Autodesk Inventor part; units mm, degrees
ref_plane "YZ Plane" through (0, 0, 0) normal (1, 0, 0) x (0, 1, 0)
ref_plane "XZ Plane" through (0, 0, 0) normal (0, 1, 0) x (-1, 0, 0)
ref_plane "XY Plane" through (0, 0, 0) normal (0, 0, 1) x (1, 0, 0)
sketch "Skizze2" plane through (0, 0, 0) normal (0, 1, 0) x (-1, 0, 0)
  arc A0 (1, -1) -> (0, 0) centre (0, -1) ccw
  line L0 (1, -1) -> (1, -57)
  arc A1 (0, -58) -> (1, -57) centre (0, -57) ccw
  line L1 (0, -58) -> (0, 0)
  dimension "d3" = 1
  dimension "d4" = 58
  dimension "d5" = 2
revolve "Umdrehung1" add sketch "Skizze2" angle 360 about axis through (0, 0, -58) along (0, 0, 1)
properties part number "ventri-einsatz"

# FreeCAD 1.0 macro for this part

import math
import FreeCAD as App
import Part
import Sketcher

doc = App.newDocument("Part")
body = doc.addObject("PartDesign::Body", "Body")

# Sketch on XZ plane
sketch1 = doc.addObject("Sketcher::SketchObject", "Sketch")
body.addObject(sketch1)
sketch1.AttachmentSupport = (doc.XZ_Plane, [""])
sketch1.MapMode = "FlatFace"
sketch1.addGeometry(Part.LineSegment(App.Vector(-1, -57, 0), App.Vector(-1, -1, 0)), False)
sketch1.addGeometry(Part.ArcOfCircle(Part.Circle(App.Vector(0, -1, 0), App.Vector(0, 0, 1), 1), math.radians(90), math.radians(180)), False)
sketch1.addGeometry(Part.LineSegment(App.Vector(0, 0, 0), App.Vector(0, -58, 0)), False)
sketch1.addGeometry(Part.ArcOfCircle(Part.Circle(App.Vector(0, -57, 0), App.Vector(0, 0, 1), 1), math.radians(180), math.radians(270)), False)
sketch1.addConstraint(Sketcher.Constraint("Tangent", 0, 2, 1, 2))
sketch1.addConstraint(Sketcher.Constraint("Coincident", 1, 1, 2, 1))
sketch1.addConstraint(Sketcher.Constraint("Coincident", 2, 2, 3, 2))
sketch1.addConstraint(Sketcher.Constraint("Tangent", 3, 1, 0, 1))
sketch1.addConstraint(Sketcher.Constraint("Vertical", 0))
sketch1.addConstraint(Sketcher.Constraint("Vertical", 2))
sketch1.addConstraint(Sketcher.Constraint("Coincident", 1, 1, -1, 1))
sketch1.addConstraint(Sketcher.Constraint("Equal", 1, 3))
sketch1.addConstraint(Sketcher.Constraint("PointOnObject", 1, 3, -2))
sketch1.addConstraint(Sketcher.Constraint("Radius", 1, 1.0))
sketch1.addConstraint(Sketcher.Constraint("DistanceY", 2, 2, 2, 1, 58.0))
revolution = doc.addObject("PartDesign::Revolution", "Revolution")
body.addObject(revolution)
revolution.Profile = sketch1
revolution.ReferenceAxis = (sketch1, ["V_Axis"])
revolution.Angle = 360

doc.recompute()
